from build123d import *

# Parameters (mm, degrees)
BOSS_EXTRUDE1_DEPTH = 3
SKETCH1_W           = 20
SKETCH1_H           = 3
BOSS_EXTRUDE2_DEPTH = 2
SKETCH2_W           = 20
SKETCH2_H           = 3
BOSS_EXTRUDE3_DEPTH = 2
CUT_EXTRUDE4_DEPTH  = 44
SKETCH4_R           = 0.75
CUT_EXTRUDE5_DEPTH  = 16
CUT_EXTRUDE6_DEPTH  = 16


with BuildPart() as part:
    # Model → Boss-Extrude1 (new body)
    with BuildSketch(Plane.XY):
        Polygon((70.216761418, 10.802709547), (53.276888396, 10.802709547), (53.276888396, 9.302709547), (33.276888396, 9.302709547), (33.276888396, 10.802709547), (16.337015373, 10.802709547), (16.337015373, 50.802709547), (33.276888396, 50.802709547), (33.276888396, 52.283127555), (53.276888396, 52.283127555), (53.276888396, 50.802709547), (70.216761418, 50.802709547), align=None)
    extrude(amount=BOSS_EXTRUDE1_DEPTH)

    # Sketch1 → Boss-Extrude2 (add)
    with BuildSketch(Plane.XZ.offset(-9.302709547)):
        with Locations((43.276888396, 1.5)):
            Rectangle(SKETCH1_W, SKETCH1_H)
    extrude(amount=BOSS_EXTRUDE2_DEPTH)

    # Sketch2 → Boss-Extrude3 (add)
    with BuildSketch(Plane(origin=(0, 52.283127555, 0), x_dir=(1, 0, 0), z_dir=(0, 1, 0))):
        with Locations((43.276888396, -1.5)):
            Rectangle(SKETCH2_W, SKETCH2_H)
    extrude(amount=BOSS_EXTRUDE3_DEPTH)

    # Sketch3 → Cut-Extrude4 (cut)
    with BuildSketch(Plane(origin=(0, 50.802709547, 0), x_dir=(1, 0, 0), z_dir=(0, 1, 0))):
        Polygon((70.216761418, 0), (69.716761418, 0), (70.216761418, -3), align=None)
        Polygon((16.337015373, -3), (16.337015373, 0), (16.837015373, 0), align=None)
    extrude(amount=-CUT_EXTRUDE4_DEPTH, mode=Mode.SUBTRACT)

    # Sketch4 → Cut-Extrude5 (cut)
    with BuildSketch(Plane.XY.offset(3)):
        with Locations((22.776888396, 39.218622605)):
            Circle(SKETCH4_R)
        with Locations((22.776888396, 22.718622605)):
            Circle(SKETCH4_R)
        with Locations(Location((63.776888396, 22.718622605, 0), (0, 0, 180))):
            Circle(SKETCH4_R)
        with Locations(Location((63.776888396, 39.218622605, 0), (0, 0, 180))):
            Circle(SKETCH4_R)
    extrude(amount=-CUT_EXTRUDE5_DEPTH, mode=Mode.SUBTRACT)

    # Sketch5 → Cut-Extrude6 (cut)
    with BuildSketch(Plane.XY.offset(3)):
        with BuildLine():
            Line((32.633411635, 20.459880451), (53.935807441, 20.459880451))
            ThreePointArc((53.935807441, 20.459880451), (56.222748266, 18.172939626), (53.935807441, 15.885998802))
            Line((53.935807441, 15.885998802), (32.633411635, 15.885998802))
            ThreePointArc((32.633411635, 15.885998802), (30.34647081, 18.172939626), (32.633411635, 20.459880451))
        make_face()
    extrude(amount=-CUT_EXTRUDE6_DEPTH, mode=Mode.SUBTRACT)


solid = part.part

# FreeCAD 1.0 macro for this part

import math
import FreeCAD as App
import Part
import Sketcher
from FreeCAD import Vector


def add_polygon(sketch, points):
    """Adds a closed chain of lines whose ends are joined by coincident constraints."""
    first, n = sketch.GeometryCount, len(points)
    for a, b in zip(points, points[1:] + points[:1]):
        sketch.addGeometry(Part.LineSegment(App.Vector(*a, 0), App.Vector(*b, 0)), False)
    for i in range(n):
        sketch.addConstraint(Sketcher.Constraint("Coincident", first + i, 2, first + (i + 1) % n, 1))

doc = App.newDocument("Part")
body = doc.addObject("PartDesign::Body", "Body")

sketch1 = body.newObject("Sketcher::SketchObject", "Sketch")
sketch1.AttachmentSupport = (doc.getObject("XY_Plane"), [""])
sketch1.MapMode = "FlatFace"
add_polygon(sketch1, [(53.276888, 10.80271), (70.216761, 10.80271), (70.216761, 50.80271), (53.276888, 50.80271), (53.276888, 52.283128), (33.276888, 52.283128), (33.276888, 50.80271), (16.337015, 50.80271), (16.337015, 10.80271), (33.276888, 10.80271), (33.276888, 9.30271), (53.276888, 9.30271)])
sketch1.addConstraint([
    Sketcher.Constraint("Horizontal", 0),
    Sketcher.Constraint("Vertical", 1),
    Sketcher.Constraint("Horizontal", 2),
    Sketcher.Constraint("Vertical", 3),
    Sketcher.Constraint("Horizontal", 4),
    Sketcher.Constraint("Vertical", 5),
    Sketcher.Constraint("Horizontal", 6),
    Sketcher.Constraint("Vertical", 7),
    Sketcher.Constraint("Horizontal", 8),
    Sketcher.Constraint("Vertical", 9),
    Sketcher.Constraint("Horizontal", 10),
    Sketcher.Constraint("Vertical", 11),
    Sketcher.Constraint("Horizontal", 2, 2, 5, 2),
    Sketcher.Constraint("Horizontal", 0, 2, 7, 2),
    Sketcher.Constraint("Vertical", 5, 2, 8, 2),
    Sketcher.Constraint("Vertical", 3, 2, 10, 2),
    Sketcher.Constraint("Equal", 2, 6),
    Sketcher.Constraint("DistanceX", 4, 2, 4, 1, 20.0),
    Sketcher.Constraint("DistanceY", 1, 1, 1, 2, 40.0),
    Sketcher.Constraint("DistanceY", 9, 2, 9, 1, 1.5),
    Sketcher.Constraint("DistanceY", 3, 1, 3, 2, 1.480418),
    Sketcher.Constraint("DistanceX", 0, 1, 0, 2, 16.939873),
    Sketcher.Constraint("DistanceX", -1, 1, 0, 2, 70.216761),
    Sketcher.Constraint("DistanceY", -1, 1, 0, 2, 10.80271),
])
pad1 = body.newObject("PartDesign::Pad", "Pad")
pad1.Profile = sketch1
pad1.Length = 3

sketch2 = body.newObject("Sketcher::SketchObject", "Sketch001")
sketch2.AttachmentSupport = (doc.getObject("XZ_Plane"), [""])
sketch2.MapMode = "FlatFace"
sketch2.AttachmentOffset = App.Placement(Vector(0, 0, -9.30271), App.Rotation())
add_polygon(sketch2, [(33.276888, 3), (33.276888, 0), (53.276888, 0), (53.276888, 3)])
sketch2.addConstraint([
    Sketcher.Constraint("Vertical", 0),
    Sketcher.Constraint("Horizontal", 1),
    Sketcher.Constraint("Vertical", 2),
    Sketcher.Constraint("Horizontal", 3),
    Sketcher.Constraint("PointOnObject", 0, 2, -1),
    Sketcher.Constraint("DistanceX", 1, 1, 1, 2, 20.0),
    Sketcher.Constraint("DistanceY", 0, 2, 0, 1, 3.0),
    Sketcher.Constraint("DistanceX", -1, 1, 0, 2, 33.276888),
])
pad2 = body.newObject("PartDesign::Pad", "Pad001")
pad2.Profile = sketch2
pad2.Length = 2

sketch3 = body.newObject("Sketcher::SketchObject", "Sketch002")
sketch3.AttachmentSupport = (doc.getObject("XZ_Plane"), [""])
sketch3.MapMode = "FlatFace"
sketch3.AttachmentOffset = App.Placement(Vector(0, 0, -52.283128), App.Rotation())
add_polygon(sketch3, [(33.276888, 0), (33.276888, 3), (53.276888, 3), (53.276888, 0)])
sketch3.addConstraint([
    Sketcher.Constraint("Vertical", 0),
    Sketcher.Constraint("Horizontal", 1),
    Sketcher.Constraint("Vertical", 2),
    Sketcher.Constraint("Horizontal", 3),
    Sketcher.Constraint("PointOnObject", 2, 2, -1),
    Sketcher.Constraint("DistanceX", 1, 1, 1, 2, 20.0),
    Sketcher.Constraint("DistanceY", 0, 1, 0, 2, 3.0),
    Sketcher.Constraint("DistanceX", -1, 1, 0, 2, 33.276888),
])
pad3 = body.newObject("PartDesign::Pad", "Pad002")
pad3.Profile = sketch3
pad3.Length = 2
pad3.Reversed = True

sketch4 = body.newObject("Sketcher::SketchObject", "Sketch003")
sketch4.AttachmentSupport = (doc.getObject("XZ_Plane"), [""])
sketch4.MapMode = "FlatFace"
sketch4.AttachmentOffset = App.Placement(Vector(0, 0, -50.80271), App.Rotation())
add_polygon(sketch4, [(70.216761, 0), (69.716761, 0), (70.216761, 3)])
add_polygon(sketch4, [(16.337015, 0), (16.337015, 3), (16.837015, 0)])
sketch4.addConstraint([
    Sketcher.Constraint("Horizontal", 0),
    Sketcher.Constraint("Vertical", 2),
    Sketcher.Constraint("Vertical", 3),
    Sketcher.Constraint("Horizontal", 5),
    Sketcher.Constraint("PointOnObject", 0, 2, -1),
    Sketcher.Constraint("PointOnObject", 4, 2, -1),
    Sketcher.Constraint("Horizontal", 1, 2, 3, 2),
    Sketcher.Constraint("Equal", 0, 5),
    Sketcher.Constraint("DistanceY", 2, 2, 2, 1, 3.0),
    Sketcher.Constraint("DistanceX", 0, 2, 0, 1, 0.5),
    Sketcher.Constraint("DistanceX", -1, 1, 0, 2, 69.716761),
    Sketcher.Constraint("DistanceX", -1, 1, 3, 2, 16.337015),
])
pocket1 = body.newObject("PartDesign::Pocket", "Pocket")
pocket1.Profile = sketch4
pocket1.Length = 44
pocket1.Reversed = True

sketch5 = body.newObject("Sketcher::SketchObject", "Sketch004")
sketch5.AttachmentSupport = (doc.getObject("XY_Plane"), [""])
sketch5.MapMode = "FlatFace"
sketch5.AttachmentOffset = App.Placement(Vector(0, 0, 3), App.Rotation())
sketch5.addGeometry([
    Part.Circle(Vector(22.776888, 39.218623, 0), Vector(0, 0, 1), 0.75),
    Part.Circle(Vector(22.776888, 22.718623, 0), Vector(0, 0, 1), 0.75),
    Part.Circle(Vector(63.776888, 22.718623, 0), Vector(0, 0, 1), 0.75),
    Part.Circle(Vector(63.776888, 39.218623, 0), Vector(0, 0, 1), 0.75),
], False)
sketch5.addConstraint([
    Sketcher.Constraint("Equal", 0, 1),
    Sketcher.Constraint("Equal", 1, 2),
    Sketcher.Constraint("Equal", 2, 3),
    Sketcher.Constraint("Horizontal", 1, 3, 2, 3),
    Sketcher.Constraint("Horizontal", 0, 3, 3, 3),
    Sketcher.Constraint("Vertical", 0, 3, 1, 3),
    Sketcher.Constraint("Vertical", 2, 3, 3, 3),
    Sketcher.Constraint("Diameter", 0, 1.5),
    Sketcher.Constraint("DistanceX", 1, 3, 2, 3, 41.0),
    Sketcher.Constraint("DistanceY", 1, 3, 0, 3, 16.5),
    Sketcher.Constraint("DistanceX", -1, 1, 0, 3, 22.776888),
    Sketcher.Constraint("DistanceY", -1, 1, 0, 3, 39.218623),
])
pocket2 = body.newObject("PartDesign::Pocket", "Pocket001")
pocket2.Profile = sketch5
pocket2.Length = 16

sketch6 = body.newObject("Sketcher::SketchObject", "Sketch005")
sketch6.AttachmentSupport = (doc.getObject("XY_Plane"), [""])
sketch6.MapMode = "FlatFace"
sketch6.AttachmentOffset = App.Placement(Vector(0, 0, 3), App.Rotation())
sketch6.addGeometry([
    Part.LineSegment(Vector(53.935807, 20.45988, 0), Vector(32.633412, 20.45988, 0)),
    Part.ArcOfCircle(Part.Circle(Vector(32.633412, 18.17294, 0), Vector(0, 0, 1), 2.286941), math.radians(90), math.radians(270)),
    Part.LineSegment(Vector(32.633412, 15.885999, 0), Vector(53.935807, 15.885999, 0)),
    Part.ArcOfCircle(Part.Circle(Vector(53.935807, 18.17294, 0), Vector(0, 0, 1), 2.286941), math.radians(-90), math.radians(90)),
], False)
sketch6.addConstraint([
    Sketcher.Constraint("Tangent", 0, 2, 1, 1),
    Sketcher.Constraint("Tangent", 1, 2, 2, 1),
    Sketcher.Constraint("Tangent", 2, 2, 3, 1),
    Sketcher.Constraint("Tangent", 3, 2, 0, 1),
    Sketcher.Constraint("Horizontal", 0),
    Sketcher.Constraint("Horizontal", 2),
    Sketcher.Constraint("Radius", 1, 2.286941),
    Sketcher.Constraint("DistanceY", -1, 1, 1, 2, 15.885999),
    Sketcher.Constraint("DistanceX", 0, 2, 0, 1, 21.302396),
    Sketcher.Constraint("DistanceX", -1, 1, 1, 3, 32.633412),
])
pocket3 = body.newObject("PartDesign::Pocket", "Pocket002")
pocket3.Profile = sketch6
pocket3.Length = 16

doc.recompute()
